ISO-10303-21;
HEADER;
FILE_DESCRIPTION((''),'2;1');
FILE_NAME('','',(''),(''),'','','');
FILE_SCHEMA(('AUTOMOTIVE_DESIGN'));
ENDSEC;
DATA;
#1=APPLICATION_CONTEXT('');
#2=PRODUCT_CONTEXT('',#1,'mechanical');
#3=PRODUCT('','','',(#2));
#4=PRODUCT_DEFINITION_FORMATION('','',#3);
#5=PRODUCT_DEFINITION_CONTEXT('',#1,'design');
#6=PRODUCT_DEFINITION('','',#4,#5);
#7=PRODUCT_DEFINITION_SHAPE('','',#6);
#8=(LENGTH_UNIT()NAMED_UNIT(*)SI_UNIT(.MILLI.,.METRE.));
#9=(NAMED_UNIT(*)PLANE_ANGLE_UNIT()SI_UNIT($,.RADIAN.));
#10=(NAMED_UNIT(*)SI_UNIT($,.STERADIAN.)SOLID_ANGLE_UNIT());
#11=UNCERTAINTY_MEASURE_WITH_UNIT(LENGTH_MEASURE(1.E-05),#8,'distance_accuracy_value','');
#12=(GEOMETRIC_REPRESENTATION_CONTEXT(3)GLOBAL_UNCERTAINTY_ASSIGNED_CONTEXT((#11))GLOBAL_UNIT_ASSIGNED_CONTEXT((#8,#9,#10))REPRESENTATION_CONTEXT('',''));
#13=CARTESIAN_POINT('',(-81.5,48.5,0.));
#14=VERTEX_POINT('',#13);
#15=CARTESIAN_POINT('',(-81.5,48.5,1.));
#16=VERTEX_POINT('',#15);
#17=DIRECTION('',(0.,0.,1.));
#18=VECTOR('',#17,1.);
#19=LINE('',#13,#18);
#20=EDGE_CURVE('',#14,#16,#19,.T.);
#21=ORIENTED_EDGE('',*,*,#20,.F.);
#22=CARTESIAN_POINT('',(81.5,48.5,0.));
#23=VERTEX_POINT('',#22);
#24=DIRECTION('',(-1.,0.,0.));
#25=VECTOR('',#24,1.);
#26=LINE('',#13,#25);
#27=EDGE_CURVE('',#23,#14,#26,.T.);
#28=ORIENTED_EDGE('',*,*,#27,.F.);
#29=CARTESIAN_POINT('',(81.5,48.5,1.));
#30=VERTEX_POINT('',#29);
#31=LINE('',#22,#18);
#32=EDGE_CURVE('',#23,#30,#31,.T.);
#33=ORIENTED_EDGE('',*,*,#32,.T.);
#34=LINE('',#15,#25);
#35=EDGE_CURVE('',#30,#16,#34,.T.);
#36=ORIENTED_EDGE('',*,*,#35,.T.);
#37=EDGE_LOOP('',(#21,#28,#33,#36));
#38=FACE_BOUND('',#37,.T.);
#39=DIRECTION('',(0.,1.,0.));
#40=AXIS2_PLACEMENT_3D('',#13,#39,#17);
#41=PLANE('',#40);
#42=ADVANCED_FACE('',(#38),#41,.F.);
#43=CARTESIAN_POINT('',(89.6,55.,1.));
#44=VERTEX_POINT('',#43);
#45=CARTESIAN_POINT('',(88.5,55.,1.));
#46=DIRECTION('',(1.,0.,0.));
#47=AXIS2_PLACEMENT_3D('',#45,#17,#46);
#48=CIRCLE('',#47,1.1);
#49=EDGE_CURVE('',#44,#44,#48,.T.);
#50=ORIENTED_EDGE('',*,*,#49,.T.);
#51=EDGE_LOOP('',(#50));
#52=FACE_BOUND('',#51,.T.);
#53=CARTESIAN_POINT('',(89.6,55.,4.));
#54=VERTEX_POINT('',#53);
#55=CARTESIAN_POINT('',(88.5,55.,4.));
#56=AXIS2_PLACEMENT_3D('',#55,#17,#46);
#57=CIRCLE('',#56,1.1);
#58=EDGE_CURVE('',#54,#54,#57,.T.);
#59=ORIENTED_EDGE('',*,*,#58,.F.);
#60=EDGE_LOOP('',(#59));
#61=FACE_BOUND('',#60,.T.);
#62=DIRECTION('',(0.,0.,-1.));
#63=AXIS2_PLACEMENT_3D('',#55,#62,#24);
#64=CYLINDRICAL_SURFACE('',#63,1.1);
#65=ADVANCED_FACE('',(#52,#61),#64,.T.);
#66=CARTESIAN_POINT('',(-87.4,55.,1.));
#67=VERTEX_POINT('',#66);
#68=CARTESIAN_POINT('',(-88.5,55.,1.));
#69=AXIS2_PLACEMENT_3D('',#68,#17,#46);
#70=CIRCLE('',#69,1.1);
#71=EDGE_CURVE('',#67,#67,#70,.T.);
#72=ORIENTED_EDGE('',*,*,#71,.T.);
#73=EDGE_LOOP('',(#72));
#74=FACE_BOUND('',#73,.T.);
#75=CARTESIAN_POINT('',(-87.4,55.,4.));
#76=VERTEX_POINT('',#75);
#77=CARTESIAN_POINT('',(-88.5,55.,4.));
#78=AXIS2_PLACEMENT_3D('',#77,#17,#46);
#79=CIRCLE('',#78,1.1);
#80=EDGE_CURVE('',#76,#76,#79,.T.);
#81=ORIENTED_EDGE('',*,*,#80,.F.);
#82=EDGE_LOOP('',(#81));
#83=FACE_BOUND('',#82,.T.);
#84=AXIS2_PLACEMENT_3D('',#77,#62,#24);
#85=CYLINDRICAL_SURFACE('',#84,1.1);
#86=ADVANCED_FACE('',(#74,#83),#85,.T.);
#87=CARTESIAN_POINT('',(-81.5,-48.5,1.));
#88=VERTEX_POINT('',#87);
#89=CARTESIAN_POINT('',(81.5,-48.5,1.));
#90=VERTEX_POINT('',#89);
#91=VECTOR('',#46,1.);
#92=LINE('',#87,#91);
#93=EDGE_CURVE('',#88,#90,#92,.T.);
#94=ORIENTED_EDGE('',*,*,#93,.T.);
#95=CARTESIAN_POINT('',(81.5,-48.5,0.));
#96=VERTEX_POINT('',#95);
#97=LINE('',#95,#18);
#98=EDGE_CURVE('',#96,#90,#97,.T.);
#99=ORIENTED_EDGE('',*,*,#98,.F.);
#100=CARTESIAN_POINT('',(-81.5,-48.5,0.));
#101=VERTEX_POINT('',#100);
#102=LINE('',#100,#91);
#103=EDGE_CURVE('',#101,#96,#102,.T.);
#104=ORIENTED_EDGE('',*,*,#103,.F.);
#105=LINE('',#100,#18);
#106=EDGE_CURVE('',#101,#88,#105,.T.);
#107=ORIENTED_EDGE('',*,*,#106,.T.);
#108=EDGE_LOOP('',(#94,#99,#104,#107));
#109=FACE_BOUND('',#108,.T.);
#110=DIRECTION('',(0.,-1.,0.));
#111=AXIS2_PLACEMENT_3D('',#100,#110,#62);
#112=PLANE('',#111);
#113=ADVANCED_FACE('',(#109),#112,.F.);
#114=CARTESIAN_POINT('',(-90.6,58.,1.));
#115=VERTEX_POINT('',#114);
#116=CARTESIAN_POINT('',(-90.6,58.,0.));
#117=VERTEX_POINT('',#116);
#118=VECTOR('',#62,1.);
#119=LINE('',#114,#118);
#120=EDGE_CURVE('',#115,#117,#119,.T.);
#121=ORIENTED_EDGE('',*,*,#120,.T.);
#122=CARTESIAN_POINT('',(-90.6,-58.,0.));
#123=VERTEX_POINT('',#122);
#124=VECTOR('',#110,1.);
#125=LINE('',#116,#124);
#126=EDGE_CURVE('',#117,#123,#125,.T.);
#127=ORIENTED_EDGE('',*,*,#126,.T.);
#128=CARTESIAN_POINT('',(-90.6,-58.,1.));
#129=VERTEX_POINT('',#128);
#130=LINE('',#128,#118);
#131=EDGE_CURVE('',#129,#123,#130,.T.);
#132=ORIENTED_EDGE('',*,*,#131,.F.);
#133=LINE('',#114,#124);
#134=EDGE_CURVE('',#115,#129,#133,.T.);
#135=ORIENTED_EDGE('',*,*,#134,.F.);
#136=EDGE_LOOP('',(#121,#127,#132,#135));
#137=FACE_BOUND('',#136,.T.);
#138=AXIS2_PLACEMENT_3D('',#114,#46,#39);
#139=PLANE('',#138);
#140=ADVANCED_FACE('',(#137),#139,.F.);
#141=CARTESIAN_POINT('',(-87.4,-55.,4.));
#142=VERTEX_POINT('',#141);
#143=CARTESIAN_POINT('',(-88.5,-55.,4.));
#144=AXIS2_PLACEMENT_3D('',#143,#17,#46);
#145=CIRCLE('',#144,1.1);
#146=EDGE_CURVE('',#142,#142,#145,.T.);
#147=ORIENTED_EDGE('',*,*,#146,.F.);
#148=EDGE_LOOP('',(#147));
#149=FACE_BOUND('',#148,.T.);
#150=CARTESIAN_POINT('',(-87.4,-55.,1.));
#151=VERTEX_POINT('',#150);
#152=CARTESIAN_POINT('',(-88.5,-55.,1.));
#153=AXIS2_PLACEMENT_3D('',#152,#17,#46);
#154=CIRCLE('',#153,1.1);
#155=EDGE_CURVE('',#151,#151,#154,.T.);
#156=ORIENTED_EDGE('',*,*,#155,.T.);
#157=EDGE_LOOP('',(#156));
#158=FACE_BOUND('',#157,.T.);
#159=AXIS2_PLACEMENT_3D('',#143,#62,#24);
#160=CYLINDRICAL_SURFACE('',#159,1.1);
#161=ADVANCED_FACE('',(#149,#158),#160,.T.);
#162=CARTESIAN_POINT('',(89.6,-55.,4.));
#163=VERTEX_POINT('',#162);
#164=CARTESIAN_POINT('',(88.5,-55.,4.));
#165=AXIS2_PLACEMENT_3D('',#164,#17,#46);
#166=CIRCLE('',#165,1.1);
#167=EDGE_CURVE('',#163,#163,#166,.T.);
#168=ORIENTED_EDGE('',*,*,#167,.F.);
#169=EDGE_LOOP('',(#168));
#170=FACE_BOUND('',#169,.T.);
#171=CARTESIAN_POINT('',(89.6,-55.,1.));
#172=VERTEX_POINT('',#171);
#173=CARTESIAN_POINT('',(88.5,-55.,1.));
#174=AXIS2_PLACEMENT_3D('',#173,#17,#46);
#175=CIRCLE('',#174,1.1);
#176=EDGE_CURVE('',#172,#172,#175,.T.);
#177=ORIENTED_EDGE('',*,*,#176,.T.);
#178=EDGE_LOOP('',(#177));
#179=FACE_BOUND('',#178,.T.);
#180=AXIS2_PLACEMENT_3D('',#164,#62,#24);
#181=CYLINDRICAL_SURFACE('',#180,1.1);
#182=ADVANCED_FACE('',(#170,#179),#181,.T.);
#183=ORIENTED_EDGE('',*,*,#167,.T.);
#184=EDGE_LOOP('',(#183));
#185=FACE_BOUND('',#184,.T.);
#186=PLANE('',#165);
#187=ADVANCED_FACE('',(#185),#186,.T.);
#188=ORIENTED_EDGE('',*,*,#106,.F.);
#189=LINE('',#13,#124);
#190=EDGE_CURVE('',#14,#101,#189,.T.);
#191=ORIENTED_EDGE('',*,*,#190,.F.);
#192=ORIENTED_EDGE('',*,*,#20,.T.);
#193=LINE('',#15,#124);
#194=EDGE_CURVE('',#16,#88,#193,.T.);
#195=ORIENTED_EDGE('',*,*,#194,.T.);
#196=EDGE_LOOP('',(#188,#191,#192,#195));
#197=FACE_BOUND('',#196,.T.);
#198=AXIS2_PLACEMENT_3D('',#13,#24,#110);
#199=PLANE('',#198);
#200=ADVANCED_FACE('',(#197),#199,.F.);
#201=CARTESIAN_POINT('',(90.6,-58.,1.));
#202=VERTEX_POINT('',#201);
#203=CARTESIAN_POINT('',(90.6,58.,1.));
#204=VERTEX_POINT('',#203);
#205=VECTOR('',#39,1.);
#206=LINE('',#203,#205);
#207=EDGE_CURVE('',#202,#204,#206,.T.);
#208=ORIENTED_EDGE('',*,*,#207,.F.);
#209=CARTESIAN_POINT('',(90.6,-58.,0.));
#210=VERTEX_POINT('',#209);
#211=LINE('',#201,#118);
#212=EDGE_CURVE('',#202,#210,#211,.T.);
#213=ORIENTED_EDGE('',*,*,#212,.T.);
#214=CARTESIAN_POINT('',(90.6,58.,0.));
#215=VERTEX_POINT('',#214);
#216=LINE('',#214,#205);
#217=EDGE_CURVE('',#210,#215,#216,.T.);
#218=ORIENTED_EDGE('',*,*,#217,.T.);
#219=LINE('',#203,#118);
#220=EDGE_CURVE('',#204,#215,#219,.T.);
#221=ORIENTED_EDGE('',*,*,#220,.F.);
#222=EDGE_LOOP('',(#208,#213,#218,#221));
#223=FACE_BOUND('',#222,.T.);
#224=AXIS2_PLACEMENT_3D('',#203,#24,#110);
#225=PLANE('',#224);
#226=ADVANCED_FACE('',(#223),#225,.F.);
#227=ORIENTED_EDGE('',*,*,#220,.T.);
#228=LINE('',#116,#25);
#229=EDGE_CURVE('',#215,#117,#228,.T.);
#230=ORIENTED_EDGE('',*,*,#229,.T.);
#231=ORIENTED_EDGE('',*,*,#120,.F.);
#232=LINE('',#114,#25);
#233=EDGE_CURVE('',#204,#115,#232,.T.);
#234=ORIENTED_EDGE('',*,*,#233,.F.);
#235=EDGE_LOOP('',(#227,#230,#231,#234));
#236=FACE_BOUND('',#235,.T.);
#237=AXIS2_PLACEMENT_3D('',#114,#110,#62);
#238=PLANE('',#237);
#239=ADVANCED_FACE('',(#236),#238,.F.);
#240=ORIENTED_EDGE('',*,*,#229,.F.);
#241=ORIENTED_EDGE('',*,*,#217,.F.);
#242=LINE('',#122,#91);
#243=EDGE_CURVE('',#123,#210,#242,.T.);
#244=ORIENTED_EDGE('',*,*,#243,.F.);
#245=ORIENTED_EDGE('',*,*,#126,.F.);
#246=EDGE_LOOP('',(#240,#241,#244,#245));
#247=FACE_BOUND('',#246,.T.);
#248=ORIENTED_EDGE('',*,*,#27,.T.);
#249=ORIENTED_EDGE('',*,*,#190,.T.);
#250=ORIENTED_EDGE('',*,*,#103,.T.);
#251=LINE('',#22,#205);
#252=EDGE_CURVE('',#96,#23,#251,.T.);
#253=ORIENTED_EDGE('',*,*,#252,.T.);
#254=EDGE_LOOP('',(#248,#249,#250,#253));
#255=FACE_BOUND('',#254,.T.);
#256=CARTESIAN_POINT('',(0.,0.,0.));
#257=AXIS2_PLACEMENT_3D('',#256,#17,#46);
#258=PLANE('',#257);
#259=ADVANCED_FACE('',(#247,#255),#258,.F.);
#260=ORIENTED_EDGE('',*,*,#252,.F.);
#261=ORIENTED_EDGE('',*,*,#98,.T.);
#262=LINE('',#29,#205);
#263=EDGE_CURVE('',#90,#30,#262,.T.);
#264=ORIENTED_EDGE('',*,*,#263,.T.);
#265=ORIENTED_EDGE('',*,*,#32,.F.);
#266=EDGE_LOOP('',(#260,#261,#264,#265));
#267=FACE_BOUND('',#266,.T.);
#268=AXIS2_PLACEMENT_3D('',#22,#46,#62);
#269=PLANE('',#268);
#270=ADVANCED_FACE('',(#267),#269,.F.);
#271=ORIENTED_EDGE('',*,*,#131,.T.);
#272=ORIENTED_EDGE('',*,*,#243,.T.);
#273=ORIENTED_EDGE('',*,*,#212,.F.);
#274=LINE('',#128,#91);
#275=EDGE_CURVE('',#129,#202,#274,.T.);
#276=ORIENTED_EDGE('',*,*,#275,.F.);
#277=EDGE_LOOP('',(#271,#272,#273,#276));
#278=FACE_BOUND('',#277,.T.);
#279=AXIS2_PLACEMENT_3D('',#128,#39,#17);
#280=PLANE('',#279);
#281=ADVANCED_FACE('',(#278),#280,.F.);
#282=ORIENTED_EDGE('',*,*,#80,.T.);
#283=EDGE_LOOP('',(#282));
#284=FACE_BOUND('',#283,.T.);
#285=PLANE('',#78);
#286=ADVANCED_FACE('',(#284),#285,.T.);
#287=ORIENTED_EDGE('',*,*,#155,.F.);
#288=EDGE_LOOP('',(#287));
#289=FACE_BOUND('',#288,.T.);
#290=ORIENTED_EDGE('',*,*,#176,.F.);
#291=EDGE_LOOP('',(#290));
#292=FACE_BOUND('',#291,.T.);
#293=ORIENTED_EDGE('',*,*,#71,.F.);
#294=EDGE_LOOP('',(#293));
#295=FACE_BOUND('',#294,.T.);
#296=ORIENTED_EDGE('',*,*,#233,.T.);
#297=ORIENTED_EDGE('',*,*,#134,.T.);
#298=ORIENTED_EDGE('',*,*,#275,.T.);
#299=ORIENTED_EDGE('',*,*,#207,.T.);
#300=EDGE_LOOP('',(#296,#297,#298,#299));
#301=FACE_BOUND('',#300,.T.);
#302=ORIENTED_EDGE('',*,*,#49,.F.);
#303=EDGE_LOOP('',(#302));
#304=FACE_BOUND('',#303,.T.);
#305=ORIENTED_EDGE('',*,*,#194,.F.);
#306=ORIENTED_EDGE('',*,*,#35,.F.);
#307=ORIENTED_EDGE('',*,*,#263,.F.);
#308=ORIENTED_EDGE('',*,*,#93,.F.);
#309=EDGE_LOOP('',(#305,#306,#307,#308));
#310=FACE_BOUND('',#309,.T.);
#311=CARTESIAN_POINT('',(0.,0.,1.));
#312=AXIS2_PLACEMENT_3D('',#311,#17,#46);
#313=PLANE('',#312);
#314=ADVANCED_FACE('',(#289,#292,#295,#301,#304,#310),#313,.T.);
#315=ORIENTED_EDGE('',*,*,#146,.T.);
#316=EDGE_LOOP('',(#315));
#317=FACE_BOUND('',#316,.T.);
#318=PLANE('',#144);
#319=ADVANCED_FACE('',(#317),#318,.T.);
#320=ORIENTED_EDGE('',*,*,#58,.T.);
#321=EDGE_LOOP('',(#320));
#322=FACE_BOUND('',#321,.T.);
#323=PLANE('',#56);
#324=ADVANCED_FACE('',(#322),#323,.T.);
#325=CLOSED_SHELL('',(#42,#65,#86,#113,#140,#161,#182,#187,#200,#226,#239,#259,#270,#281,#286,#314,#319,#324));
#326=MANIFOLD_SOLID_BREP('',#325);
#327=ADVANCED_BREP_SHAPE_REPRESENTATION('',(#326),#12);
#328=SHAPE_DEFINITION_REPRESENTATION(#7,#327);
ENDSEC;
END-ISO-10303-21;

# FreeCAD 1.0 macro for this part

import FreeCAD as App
import Part
import Sketcher

doc = App.newDocument("Part")
body = doc.addObject("PartDesign::Body", "Body")

# Sketch on XY plane
sketch1 = body.newObject("Sketcher::SketchObject", "Sketch")
sketch1.AttachmentSupport = (doc.getObject("XY_Plane"), [""])
sketch1.MapMode = "FlatFace"
sketch1.addGeometry([
    Part.LineSegment(App.Vector(-91, 58, 0), App.Vector(-91, -58, 0)),
    Part.LineSegment(App.Vector(-91, -58, 0), App.Vector(91, -58, 0)),
    Part.LineSegment(App.Vector(91, -58, 0), App.Vector(91, 58, 0)),
    Part.LineSegment(App.Vector(91, 58, 0), App.Vector(-91, 58, 0)),
], False)
sketch1.addConstraint([
    Sketcher.Constraint("Coincident", 0, 2, 1, 1),
    Sketcher.Constraint("Coincident", 1, 2, 2, 1),
    Sketcher.Constraint("Coincident", 2, 2, 3, 1),
    Sketcher.Constraint("Coincident", 3, 2, 0, 1),
    Sketcher.Constraint("Vertical", 0),
    Sketcher.Constraint("Horizontal", 1),
    Sketcher.Constraint("Vertical", 2),
    Sketcher.Constraint("Horizontal", 3),
    Sketcher.Constraint("Symmetric", 0, 2, 2, 2, -1, 1),
    Sketcher.Constraint("DistanceY", 0, 2, 0, 1, 116.0),
    Sketcher.Constraint("DistanceX", 1, 1, 1, 2, 181.2),
])
pad1 = body.newObject("PartDesign::Pad", "Pad")
pad1.Profile = sketch1
pad1.Length = 1

# Sketch on XY plane
sketch2 = body.newObject("Sketcher::SketchObject", "Sketch001")
sketch2.AttachmentSupport = (doc.getObject("XY_Plane"), [""])
sketch2.MapMode = "FlatFace"
sketch2.AttachmentOffset = App.Placement(App.Vector(0, 0, 1), App.Rotation())
sketch2.addGeometry([
    Part.LineSegment(App.Vector(-82, 48, 0), App.Vector(-82, -48, 0)),
    Part.LineSegment(App.Vector(-82, -48, 0), App.Vector(82, -48, 0)),
    Part.LineSegment(App.Vector(82, -48, 0), App.Vector(82, 48, 0)),
    Part.LineSegment(App.Vector(82, 48, 0), App.Vector(-82, 48, 0)),
], False)
sketch2.addConstraint([
    Sketcher.Constraint("Coincident", 0, 2, 1, 1),
    Sketcher.Constraint("Coincident", 1, 2, 2, 1),
    Sketcher.Constraint("Coincident", 2, 2, 3, 1),
    Sketcher.Constraint("Coincident", 3, 2, 0, 1),
    Sketcher.Constraint("Vertical", 0),
    Sketcher.Constraint("Horizontal", 1),
    Sketcher.Constraint("Vertical", 2),
    Sketcher.Constraint("Horizontal", 3),
    Sketcher.Constraint("Symmetric", 0, 2, 2, 2, -1, 1),
    Sketcher.Constraint("DistanceX", 1, 1, 1, 2, 163.0),
    Sketcher.Constraint("DistanceY", 0, 2, 0, 1, 97.0),
])
pocket1 = body.newObject("PartDesign::Pocket", "Pocket")
pocket1.Profile = sketch2
pocket1.Length = 1

# Sketch on XY plane
sketch3 = body.newObject("Sketcher::SketchObject", "Sketch002")
sketch3.AttachmentSupport = (doc.getObject("XY_Plane"), [""])
sketch3.MapMode = "FlatFace"
sketch3.AttachmentOffset = App.Placement(App.Vector(0, 0, 1), App.Rotation())
sketch3.addGeometry([
    Part.Circle(App.Vector(-88.5, 55, 0), App.Vector(0, 0, 1), 1.1),
    Part.Circle(App.Vector(-88.5, -55, 0), App.Vector(0, 0, 1), 1.1),
    Part.Circle(App.Vector(88.5, -55, 0), App.Vector(0, 0, 1), 1.1),
    Part.Circle(App.Vector(88.5, 55, 0), App.Vector(0, 0, 1), 1.1),
], False)
sketch3.addConstraint([
    Sketcher.Constraint("Equal", 0, 1),
    Sketcher.Constraint("Equal", 1, 2),
    Sketcher.Constraint("Equal", 2, 3),
    Sketcher.Constraint("Symmetric", 0, 3, 2, 3, -1, 1),
    Sketcher.Constraint("Symmetric", 1, 3, 3, 3, -1, 1),
    Sketcher.Constraint("Symmetric", 1, 3, 2, 3, -2),
    Sketcher.Constraint("Diameter", 0, 2.2),
    Sketcher.Constraint("DistanceY", -1, 1, 0, 3, 55.0),
    Sketcher.Constraint("DistanceX", 1, 3, 2, 3, 177.0),
])
pad2 = body.newObject("PartDesign::Pad", "Pad001")
pad2.Profile = sketch3
pad2.Length = 3

doc.recompute()
